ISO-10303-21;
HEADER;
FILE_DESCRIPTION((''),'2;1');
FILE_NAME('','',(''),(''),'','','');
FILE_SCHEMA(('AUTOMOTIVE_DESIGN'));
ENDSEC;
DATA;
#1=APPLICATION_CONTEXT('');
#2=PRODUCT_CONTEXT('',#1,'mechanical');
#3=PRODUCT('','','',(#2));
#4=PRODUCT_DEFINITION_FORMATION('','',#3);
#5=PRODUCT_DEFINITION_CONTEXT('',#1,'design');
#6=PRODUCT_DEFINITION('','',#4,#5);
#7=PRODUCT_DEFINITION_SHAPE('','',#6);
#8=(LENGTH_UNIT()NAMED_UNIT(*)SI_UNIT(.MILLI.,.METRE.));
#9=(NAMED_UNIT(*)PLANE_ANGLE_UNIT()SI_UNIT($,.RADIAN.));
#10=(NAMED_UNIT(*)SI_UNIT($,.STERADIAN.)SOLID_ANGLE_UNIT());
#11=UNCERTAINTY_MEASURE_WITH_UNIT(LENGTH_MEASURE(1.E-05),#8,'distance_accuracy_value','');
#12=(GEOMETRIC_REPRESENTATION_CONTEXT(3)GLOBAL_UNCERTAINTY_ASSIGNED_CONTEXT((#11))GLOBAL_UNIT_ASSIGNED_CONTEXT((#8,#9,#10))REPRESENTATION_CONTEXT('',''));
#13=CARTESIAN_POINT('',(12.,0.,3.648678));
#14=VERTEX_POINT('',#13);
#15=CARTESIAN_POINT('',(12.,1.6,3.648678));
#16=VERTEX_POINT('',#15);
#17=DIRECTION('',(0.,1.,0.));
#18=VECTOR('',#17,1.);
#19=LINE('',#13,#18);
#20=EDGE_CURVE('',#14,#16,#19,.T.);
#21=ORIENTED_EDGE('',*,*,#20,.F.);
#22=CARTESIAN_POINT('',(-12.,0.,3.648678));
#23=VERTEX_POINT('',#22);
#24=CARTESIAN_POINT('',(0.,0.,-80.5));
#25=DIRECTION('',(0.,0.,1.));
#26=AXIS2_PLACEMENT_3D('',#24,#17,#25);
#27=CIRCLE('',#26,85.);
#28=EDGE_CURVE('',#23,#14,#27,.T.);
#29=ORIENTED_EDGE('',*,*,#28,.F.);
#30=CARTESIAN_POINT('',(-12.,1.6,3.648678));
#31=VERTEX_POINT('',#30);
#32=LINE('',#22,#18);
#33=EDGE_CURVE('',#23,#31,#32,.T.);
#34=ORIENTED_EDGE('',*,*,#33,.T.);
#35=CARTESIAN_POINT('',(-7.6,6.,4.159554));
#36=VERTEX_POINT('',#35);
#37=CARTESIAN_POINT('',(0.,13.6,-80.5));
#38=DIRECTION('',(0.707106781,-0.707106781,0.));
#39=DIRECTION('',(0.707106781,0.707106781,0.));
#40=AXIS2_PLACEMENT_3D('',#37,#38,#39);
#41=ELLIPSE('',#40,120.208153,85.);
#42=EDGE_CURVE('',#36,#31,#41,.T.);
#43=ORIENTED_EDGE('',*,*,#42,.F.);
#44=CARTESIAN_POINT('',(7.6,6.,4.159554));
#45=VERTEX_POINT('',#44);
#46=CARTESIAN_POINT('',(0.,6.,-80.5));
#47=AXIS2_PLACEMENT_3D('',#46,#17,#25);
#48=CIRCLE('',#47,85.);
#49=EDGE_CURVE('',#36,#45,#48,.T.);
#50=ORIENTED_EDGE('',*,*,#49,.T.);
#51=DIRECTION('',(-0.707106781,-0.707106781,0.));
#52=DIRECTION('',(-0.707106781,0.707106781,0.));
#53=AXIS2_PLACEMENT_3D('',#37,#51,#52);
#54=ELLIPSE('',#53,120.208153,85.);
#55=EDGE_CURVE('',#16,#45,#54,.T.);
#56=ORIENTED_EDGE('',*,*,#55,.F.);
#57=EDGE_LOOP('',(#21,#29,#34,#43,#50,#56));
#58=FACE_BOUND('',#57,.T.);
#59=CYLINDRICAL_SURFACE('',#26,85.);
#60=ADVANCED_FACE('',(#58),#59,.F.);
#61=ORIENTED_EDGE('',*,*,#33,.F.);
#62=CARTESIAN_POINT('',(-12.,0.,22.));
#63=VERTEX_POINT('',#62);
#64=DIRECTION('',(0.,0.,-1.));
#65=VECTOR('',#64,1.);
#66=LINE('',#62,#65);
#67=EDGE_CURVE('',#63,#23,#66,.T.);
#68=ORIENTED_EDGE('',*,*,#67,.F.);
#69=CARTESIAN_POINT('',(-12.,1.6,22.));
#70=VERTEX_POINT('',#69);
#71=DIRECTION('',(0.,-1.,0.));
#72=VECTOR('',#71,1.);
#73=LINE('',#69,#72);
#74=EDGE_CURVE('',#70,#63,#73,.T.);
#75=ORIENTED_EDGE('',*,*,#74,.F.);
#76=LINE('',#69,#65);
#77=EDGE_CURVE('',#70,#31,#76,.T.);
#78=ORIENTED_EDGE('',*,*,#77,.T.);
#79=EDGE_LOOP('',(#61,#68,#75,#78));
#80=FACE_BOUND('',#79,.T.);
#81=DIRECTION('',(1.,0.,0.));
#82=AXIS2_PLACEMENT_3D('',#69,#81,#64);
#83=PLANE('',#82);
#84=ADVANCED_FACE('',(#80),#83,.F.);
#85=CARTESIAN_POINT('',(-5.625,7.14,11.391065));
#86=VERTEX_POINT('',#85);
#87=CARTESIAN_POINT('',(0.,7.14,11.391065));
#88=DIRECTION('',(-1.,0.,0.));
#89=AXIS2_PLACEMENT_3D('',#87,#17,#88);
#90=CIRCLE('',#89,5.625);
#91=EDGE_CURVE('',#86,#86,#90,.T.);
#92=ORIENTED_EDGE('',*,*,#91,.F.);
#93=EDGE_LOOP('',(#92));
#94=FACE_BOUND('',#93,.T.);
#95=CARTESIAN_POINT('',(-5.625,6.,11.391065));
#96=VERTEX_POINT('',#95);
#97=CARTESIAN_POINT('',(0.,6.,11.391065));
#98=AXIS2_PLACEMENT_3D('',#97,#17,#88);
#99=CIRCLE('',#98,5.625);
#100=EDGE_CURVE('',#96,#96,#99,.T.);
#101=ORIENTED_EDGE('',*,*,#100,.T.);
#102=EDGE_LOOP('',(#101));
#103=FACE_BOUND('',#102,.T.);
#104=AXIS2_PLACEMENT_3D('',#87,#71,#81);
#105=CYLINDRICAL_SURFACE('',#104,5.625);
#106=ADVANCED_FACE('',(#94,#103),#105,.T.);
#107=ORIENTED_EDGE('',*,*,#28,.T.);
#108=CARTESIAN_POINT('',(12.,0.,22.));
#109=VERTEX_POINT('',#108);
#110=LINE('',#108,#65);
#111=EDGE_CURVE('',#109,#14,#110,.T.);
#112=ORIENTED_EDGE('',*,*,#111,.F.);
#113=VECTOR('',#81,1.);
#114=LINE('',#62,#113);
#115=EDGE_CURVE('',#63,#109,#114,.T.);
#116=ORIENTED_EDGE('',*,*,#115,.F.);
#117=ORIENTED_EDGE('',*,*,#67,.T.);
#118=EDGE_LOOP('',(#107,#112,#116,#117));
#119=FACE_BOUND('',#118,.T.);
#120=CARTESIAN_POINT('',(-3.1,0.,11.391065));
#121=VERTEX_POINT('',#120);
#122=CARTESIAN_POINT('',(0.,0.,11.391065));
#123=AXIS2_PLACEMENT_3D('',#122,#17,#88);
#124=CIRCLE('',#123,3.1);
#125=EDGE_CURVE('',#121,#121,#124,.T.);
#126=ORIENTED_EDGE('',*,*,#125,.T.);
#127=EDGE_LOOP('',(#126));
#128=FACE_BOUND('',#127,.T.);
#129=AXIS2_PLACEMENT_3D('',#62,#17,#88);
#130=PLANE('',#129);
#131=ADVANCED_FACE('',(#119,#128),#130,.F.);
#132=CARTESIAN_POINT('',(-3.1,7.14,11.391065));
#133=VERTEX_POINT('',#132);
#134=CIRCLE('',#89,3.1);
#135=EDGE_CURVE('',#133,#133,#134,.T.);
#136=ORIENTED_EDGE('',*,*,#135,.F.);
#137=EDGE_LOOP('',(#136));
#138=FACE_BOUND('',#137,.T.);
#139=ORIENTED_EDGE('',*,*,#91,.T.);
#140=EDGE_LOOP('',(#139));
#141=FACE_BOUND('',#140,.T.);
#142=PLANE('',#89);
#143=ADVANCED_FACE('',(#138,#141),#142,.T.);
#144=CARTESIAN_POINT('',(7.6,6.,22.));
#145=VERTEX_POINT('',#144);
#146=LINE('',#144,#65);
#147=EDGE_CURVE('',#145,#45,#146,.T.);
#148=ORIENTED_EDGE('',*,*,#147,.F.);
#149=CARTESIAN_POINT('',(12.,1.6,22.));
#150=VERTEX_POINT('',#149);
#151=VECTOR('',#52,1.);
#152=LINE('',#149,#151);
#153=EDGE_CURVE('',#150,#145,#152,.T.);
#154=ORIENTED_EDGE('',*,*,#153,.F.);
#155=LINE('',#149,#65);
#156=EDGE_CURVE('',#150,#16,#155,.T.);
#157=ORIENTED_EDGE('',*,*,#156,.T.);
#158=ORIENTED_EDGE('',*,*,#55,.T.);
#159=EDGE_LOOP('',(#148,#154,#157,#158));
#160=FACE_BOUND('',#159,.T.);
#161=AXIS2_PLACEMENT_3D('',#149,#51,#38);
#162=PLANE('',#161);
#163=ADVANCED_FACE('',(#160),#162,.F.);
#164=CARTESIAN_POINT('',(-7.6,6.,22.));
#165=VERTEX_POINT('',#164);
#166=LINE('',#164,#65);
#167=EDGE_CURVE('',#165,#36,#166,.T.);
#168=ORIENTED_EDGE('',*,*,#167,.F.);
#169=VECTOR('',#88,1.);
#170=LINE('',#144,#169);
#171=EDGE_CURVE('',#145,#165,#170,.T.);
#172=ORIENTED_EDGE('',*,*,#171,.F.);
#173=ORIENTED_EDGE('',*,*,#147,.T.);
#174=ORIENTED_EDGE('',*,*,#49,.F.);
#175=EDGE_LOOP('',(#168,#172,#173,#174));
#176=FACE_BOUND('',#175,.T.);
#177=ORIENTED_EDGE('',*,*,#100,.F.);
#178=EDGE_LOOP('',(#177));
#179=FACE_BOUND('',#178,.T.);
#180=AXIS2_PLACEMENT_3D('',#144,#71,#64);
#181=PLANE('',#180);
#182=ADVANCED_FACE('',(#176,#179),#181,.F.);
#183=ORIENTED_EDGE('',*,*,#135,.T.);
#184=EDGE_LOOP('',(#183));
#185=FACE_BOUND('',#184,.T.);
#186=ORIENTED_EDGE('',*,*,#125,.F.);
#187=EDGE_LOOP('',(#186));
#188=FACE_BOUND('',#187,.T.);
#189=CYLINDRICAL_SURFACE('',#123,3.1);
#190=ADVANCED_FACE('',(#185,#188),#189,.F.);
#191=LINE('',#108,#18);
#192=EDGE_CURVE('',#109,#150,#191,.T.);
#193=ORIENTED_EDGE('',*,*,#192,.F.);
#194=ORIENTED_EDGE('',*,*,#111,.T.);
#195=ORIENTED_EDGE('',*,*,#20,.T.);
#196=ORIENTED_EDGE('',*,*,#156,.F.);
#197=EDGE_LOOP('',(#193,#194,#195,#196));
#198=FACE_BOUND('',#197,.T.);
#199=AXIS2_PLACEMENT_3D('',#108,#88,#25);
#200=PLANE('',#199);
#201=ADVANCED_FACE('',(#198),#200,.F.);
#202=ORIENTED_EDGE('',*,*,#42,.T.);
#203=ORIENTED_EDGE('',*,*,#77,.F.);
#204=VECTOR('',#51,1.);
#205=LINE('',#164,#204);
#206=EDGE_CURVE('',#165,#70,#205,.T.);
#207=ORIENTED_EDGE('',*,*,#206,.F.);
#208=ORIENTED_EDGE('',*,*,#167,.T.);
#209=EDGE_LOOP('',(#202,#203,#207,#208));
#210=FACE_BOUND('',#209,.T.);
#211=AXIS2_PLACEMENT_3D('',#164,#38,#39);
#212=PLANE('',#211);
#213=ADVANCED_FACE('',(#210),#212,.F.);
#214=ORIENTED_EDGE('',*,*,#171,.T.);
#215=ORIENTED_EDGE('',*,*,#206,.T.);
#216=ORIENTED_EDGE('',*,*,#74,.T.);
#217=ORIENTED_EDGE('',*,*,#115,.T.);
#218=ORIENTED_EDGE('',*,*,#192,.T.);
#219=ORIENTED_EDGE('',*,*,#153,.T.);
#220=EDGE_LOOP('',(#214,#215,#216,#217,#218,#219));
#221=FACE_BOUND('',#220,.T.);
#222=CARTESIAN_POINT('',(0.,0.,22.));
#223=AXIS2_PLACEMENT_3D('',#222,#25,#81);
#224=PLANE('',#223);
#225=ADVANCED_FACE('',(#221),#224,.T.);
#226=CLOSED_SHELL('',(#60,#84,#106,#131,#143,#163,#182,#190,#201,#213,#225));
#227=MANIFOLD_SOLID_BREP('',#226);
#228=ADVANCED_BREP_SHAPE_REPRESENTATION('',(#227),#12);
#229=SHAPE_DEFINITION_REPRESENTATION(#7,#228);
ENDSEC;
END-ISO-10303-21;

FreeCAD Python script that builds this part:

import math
import FreeCAD as App
import Part
import Sketcher
from FreeCAD import Vector


def add_polygon(sketch, points):
    """Adds a closed chain of lines whose ends are joined by coincident constraints."""
    first, n = sketch.GeometryCount, len(points)
    for a, b in zip(points, points[1:] + points[:1]):
        sketch.addGeometry(Part.LineSegment(App.Vector(*a, 0), App.Vector(*b, 0)), False)
    for i in range(n):
        sketch.addConstraint(Sketcher.Constraint("Coincident", first + i, 2, first + (i + 1) % n, 1))

doc = App.newDocument("Part")
body = doc.addObject("PartDesign::Body", "Body")

# Sketch on XY plane
sketch1 = body.newObject("Sketcher::SketchObject", "Sketch")
sketch1.AttachmentSupport = (doc.getObject("XY_Plane"), [""])
sketch1.MapMode = "FlatFace"
add_polygon(sketch1, [(-12, 0), (12, 0), (12, 1.6), (7.6, 6), (-7.6, 6), (-12, 1.6)])  # lines 0-5
sketch1.addConstraint([
    Sketcher.Constraint("Horizontal", 0),
    Sketcher.Constraint("Vertical", 1),
    Sketcher.Constraint("Horizontal", 3),
    Sketcher.Constraint("Vertical", 5),
    Sketcher.Constraint("Symmetric", 0, 2, 5, 2, -1, 1),
    Sketcher.Constraint("Perpendicular", 2, 4),
    Sketcher.Constraint("Horizontal", 1, 2, 4, 2),
    Sketcher.Constraint("Equal", 2, 4),
    Sketcher.Constraint("DistanceX", 0, 1, 0, 2, 24.0),
    Sketcher.Constraint("DistanceX", 3, 2, 3, 1, 15.2),
    Sketcher.Constraint("DistanceY", 1, 1, 1, 2, 1.6),
])
pad1 = body.newObject("PartDesign::Pad", "Pad")
pad1.Profile = sketch1
pad1.Length = 22

# Sketch on XZ plane
sketch2 = body.newObject("Sketcher::SketchObject", "Sketch001")
sketch2.AttachmentSupport = (doc.getObject("XZ_Plane"), [""])
sketch2.MapMode = "FlatFace"
sketch2.AttachmentOffset = App.Placement(Vector(0, 0, -6), App.Rotation())
sketch2.addGeometry(Part.Circle(Vector(0, 11.391065, 0), Vector(0, 0, 1), 5.625), False)
sketch2.addConstraint([
    Sketcher.Constraint("PointOnObject", 0, 3, -2),
    Sketcher.Constraint("Diameter", 0, 11.25),
    Sketcher.Constraint("DistanceY", -1, 1, 0, 3, 11.391065),
])
pad2 = body.newObject("PartDesign::Pad", "Pad001")
pad2.Profile = sketch2
pad2.Length = 1.14
pad2.Reversed = True

# Sketch on XZ plane
sketch3 = body.newObject("Sketcher::SketchObject", "Sketch002")
sketch3.AttachmentSupport = (doc.getObject("XZ_Plane"), [""])
sketch3.MapMode = "FlatFace"
sketch3.AttachmentOffset = App.Placement(Vector(0, 0, -7.14), App.Rotation())
sketch3.addGeometry(Part.Circle(Vector(0, 11.391065, 0), Vector(0, 0, 1), 3.1), False)
sketch3.addConstraint([
    Sketcher.Constraint("PointOnObject", 0, 3, -2),
    Sketcher.Constraint("Diameter", 0, 6.2),
    Sketcher.Constraint("DistanceY", -1, 1, 0, 3, 11.391065),
])
pocket1 = body.newObject("PartDesign::Pocket", "Pocket")
pocket1.Profile = sketch3
pocket1.Type = "ThroughAll"
pocket1.Reversed = True

# Sketch on XZ plane
sketch4 = body.newObject("Sketcher::SketchObject", "Sketch003")
sketch4.AttachmentSupport = (doc.getObject("XZ_Plane"), [""])
sketch4.MapMode = "FlatFace"
sketch4.AttachmentOffset = App.Placement(Vector(0, 0, -6), App.Rotation())
sketch4.addGeometry([
    Part.LineSegment(Vector(-12, 0, 0), Vector(-12, 3.648678, 0)),
    Part.ArcOfCircle(Part.Circle(Vector(0, -80.5, 0), Vector(0, 0, 1), 85), math.radians(81.884071), math.radians(98.115929)),
    Part.LineSegment(Vector(12, 3.648678, 0), Vector(12, 0, 0)),
    Part.LineSegment(Vector(12, 0, 0), Vector(-12, 0, 0)),
], False)
sketch4.addConstraint([
    Sketcher.Constraint("Coincident", 0, 2, 1, 2),
    Sketcher.Constraint("Coincident", 1, 1, 2, 1),
    Sketcher.Constraint("Coincident", 2, 2, 3, 1),
    Sketcher.Constraint("Coincident", 3, 2, 0, 1),
    Sketcher.Constraint("Vertical", 0),
    Sketcher.Constraint("Vertical", 2),
    Sketcher.Constraint("Horizontal", 3),
    Sketcher.Constraint("Symmetric", 2, 2, 3, 2, -1, 1),
    Sketcher.Constraint("PointOnObject", 1, 3, -2),
    Sketcher.Constraint("Radius", 1, 85.0),
    Sketcher.Constraint("DistanceX", 3, 2, 3, 1, 24.0),
    Sketcher.Constraint("DistanceY", 1, 3, -1, 1, 80.5),
])
pocket2 = body.newObject("PartDesign::Pocket", "Pocket001")
pocket2.Profile = sketch4
pocket2.Type = "ThroughAll"
pocket2.Reversed = True

doc.recompute()
